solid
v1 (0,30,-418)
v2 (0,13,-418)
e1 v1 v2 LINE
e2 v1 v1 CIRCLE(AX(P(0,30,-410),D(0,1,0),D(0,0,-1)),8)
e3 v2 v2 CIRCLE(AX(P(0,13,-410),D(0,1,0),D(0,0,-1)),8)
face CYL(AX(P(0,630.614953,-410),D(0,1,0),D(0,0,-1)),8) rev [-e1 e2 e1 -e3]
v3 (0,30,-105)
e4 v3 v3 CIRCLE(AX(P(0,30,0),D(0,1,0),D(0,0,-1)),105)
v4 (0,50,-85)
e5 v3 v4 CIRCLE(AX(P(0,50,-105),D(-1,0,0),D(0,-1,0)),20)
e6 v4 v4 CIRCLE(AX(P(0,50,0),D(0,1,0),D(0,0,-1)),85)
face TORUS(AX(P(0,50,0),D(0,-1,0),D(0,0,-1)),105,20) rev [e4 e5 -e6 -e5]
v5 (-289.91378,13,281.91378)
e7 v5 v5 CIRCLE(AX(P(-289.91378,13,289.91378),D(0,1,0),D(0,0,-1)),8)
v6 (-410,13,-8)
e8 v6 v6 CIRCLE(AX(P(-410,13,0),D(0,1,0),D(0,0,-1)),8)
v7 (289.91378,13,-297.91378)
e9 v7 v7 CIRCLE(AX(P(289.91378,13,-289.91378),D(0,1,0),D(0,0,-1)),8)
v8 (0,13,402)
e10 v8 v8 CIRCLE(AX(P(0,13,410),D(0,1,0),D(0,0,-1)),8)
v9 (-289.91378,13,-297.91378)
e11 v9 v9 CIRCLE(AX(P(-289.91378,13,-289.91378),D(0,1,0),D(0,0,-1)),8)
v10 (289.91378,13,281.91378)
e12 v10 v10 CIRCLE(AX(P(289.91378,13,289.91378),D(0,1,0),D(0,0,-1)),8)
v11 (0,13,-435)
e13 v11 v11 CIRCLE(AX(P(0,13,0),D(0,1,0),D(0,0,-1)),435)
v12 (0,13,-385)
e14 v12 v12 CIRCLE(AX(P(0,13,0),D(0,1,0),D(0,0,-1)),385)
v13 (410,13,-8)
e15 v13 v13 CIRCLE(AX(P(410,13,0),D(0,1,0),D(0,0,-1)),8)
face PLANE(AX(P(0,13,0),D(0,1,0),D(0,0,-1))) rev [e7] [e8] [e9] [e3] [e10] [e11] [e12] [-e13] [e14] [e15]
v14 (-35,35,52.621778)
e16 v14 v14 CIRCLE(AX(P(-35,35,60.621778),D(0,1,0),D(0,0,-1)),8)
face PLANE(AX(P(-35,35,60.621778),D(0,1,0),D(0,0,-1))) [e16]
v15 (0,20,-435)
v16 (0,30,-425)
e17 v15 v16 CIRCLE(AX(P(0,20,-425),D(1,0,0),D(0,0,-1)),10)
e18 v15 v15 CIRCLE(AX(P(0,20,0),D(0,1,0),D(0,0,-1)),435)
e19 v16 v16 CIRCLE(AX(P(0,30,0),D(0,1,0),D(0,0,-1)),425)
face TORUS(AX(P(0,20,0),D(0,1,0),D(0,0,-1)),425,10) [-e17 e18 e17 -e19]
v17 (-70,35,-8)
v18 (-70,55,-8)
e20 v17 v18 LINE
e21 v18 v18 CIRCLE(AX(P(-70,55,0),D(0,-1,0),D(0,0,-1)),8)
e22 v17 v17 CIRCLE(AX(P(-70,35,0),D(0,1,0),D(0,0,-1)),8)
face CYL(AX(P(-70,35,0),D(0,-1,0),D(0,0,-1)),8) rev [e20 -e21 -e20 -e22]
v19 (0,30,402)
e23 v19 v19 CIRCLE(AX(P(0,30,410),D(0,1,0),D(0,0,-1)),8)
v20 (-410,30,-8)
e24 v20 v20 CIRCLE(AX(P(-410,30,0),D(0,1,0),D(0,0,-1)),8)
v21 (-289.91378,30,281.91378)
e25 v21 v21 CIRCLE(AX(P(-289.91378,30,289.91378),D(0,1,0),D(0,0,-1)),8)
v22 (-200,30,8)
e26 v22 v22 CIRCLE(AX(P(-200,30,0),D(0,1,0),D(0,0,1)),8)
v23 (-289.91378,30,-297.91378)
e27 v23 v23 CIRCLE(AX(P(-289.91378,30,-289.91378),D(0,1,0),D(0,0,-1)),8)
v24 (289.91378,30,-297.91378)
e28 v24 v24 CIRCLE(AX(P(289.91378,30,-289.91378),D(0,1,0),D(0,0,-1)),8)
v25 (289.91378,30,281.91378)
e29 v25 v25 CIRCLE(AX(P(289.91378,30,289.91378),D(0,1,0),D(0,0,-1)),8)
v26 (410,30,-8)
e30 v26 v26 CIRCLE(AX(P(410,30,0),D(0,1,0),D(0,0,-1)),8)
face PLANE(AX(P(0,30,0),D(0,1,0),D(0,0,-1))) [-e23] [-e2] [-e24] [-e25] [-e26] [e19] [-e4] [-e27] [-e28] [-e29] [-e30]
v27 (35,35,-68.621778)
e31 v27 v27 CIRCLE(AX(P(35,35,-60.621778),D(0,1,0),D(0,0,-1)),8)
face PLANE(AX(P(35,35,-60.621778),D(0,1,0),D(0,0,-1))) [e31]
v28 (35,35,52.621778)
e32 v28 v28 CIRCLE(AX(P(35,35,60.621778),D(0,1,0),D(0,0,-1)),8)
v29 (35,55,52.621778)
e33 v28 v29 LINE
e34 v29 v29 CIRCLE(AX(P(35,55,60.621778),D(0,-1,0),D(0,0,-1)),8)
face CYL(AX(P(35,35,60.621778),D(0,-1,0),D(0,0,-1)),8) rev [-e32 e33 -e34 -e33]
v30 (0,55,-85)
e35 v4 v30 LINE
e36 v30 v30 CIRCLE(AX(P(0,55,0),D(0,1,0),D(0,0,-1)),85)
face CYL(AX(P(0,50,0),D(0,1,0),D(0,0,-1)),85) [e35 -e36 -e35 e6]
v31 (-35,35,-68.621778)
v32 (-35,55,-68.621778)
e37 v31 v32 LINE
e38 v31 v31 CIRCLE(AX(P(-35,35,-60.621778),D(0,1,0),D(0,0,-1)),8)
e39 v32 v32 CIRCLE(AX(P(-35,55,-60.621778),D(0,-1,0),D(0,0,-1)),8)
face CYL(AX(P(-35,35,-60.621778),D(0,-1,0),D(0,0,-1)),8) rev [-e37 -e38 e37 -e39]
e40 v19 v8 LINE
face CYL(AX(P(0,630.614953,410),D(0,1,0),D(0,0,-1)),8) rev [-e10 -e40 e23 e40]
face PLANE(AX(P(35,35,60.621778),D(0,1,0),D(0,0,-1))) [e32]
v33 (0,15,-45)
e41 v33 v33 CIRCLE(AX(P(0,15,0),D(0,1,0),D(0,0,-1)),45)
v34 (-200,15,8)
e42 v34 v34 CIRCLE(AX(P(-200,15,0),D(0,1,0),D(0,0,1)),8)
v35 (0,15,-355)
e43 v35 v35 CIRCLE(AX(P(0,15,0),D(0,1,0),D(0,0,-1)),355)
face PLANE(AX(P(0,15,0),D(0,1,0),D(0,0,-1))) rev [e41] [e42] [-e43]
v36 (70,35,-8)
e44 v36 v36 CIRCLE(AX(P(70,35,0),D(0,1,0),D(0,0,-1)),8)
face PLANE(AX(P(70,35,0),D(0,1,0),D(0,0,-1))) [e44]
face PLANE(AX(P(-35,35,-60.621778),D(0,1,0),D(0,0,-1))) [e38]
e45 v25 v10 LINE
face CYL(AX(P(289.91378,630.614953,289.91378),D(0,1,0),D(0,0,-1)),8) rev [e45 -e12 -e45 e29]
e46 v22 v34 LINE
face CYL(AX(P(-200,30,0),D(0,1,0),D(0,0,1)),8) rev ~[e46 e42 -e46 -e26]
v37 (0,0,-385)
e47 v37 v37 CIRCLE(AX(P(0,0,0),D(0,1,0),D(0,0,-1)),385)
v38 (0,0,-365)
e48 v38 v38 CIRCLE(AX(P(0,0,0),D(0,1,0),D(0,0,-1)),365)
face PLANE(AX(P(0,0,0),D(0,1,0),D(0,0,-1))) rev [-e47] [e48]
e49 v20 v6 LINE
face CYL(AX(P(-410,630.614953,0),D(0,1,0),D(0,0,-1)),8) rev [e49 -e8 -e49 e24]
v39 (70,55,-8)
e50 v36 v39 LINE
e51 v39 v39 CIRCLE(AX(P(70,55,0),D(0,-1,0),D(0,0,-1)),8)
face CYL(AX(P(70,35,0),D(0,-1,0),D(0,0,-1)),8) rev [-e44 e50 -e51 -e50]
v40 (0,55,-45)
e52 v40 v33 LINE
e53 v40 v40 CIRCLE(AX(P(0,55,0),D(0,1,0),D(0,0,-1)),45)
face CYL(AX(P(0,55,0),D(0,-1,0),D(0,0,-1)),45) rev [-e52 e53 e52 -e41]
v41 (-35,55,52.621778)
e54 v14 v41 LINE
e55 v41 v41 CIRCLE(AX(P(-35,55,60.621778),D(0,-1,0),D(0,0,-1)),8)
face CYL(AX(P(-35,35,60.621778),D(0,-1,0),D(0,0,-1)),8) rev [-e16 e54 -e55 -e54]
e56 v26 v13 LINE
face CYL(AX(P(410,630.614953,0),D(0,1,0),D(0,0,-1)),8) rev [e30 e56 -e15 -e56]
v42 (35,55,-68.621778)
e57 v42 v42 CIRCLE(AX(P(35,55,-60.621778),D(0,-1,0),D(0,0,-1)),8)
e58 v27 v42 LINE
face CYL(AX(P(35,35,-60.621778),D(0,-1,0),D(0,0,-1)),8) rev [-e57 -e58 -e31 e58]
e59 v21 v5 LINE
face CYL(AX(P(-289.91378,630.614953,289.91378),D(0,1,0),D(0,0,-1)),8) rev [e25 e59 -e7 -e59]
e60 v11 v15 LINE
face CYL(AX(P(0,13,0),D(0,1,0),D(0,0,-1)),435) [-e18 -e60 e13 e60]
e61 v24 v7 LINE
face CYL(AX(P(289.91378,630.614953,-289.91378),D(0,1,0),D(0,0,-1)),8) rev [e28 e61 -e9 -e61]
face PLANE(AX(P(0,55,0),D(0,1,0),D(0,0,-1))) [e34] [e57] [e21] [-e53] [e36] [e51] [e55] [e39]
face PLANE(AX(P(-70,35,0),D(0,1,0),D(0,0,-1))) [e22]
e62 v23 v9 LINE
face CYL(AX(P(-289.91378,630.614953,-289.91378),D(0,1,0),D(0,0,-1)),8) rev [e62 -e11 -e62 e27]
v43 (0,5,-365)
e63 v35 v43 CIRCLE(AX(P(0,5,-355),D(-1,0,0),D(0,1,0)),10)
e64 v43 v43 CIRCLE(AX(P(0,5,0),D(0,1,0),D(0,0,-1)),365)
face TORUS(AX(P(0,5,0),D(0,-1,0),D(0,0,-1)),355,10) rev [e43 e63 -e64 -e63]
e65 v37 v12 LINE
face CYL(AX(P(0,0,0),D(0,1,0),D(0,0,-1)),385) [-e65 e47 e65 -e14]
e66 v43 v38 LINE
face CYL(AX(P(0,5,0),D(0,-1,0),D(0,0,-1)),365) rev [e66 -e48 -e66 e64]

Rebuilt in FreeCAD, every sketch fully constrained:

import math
import FreeCAD as App
import Part
import Sketcher
from FreeCAD import Vector
Q = App.Units.Quantity

doc = App.newDocument("Part")
body = doc.addObject("PartDesign::Body", "Body")

sketch1 = body.newObject("Sketcher::SketchObject", "Sketch")
sketch1.AttachmentSupport = (doc.getObject("XY_Plane"), [""])
sketch1.MapMode = "FlatFace"
sketch1.addGeometry([
    Part.LineSegment(Vector(-385, 0, 0), Vector(-365, 0, 0)),
    Part.LineSegment(Vector(-365, 0, 0), Vector(-365, 5, 0)),
    Part.ArcOfCircle(Part.Circle(Vector(-355, 5, 0), Vector(0, 0, 1), 10), math.radians(90), math.radians(180)),
    Part.LineSegment(Vector(-355, 15, 0), Vector(-45, 15, 0)),
    Part.LineSegment(Vector(-45, 15, 0), Vector(-45, 55, 0)),
    Part.LineSegment(Vector(-45, 55, 0), Vector(-85, 55, 0)),
    Part.LineSegment(Vector(-85, 55, 0), Vector(-85, 50, 0)),
    Part.ArcOfCircle(Part.Circle(Vector(-105, 50, 0), Vector(0, 0, 1), 20), math.radians(-90), math.radians(0)),
    Part.LineSegment(Vector(-105, 30, 0), Vector(-425, 30, 0)),
    Part.ArcOfCircle(Part.Circle(Vector(-425, 20, 0), Vector(0, 0, 1), 10), math.radians(90), math.radians(180)),
    Part.LineSegment(Vector(-435, 20, 0), Vector(-435, 13, 0)),
    Part.LineSegment(Vector(-435, 13, 0), Vector(-385, 13, 0)),
    Part.LineSegment(Vector(-385, 13, 0), Vector(-385, 0, 0)),
], False)
sketch1.addConstraint([
    Sketcher.Constraint("Coincident", 0, 2, 1, 1),
    Sketcher.Constraint("Tangent", 1, 2, 2, 2),
    Sketcher.Constraint("Tangent", 2, 1, 3, 1),
    Sketcher.Constraint("Coincident", 3, 2, 4, 1),
    Sketcher.Constraint("Coincident", 4, 2, 5, 1),
    Sketcher.Constraint("Coincident", 5, 2, 6, 1),
    Sketcher.Constraint("Tangent", 6, 2, 7, 2),
    Sketcher.Constraint("Tangent", 7, 1, 8, 1),
    Sketcher.Constraint("Tangent", 8, 2, 9, 1),
    Sketcher.Constraint("Tangent", 9, 2, 10, 1),
    Sketcher.Constraint("Coincident", 10, 2, 11, 1),
    Sketcher.Constraint("Coincident", 11, 2, 12, 1),
    Sketcher.Constraint("Coincident", 12, 2, 0, 1),
    Sketcher.Constraint("Horizontal", 0),
    Sketcher.Constraint("Vertical", 1),
    Sketcher.Constraint("Horizontal", 3),
    Sketcher.Constraint("Vertical", 4),
    Sketcher.Constraint("Horizontal", 5),
    Sketcher.Constraint("Vertical", 6),
    Sketcher.Constraint("Horizontal", 8),
    Sketcher.Constraint("Vertical", 10),
    Sketcher.Constraint("Horizontal", 11),
    Sketcher.Constraint("Vertical", 12),
    Sketcher.Constraint("Equal", 2, 9),
    Sketcher.Constraint("PointOnObject", 0, 2, -1),
    Sketcher.Constraint("Equal", 5, 4),
    Sketcher.Constraint("Equal", 1, 6),
    Sketcher.Constraint("Radius", 2, Q("10 mm")),
    Sketcher.Constraint("Radius", 7, Q("20 mm")),
    Sketcher.Constraint("DistanceX", 0, 1, 0, 2, Q("20 mm")),
    Sketcher.Constraint("DistanceX", 3, 1, 3, 2, Q("310 mm")),
    Sketcher.Constraint("DistanceX", 5, 2, 5, 1, Q("40 mm")),
    Sketcher.Constraint("DistanceX", 8, 2, 8, 1, Q("320 mm")),
    Sketcher.Constraint("DistanceY", 1, 1, 1, 2, Q("5 mm")),
    Sketcher.Constraint("DistanceY", 10, 2, 10, 1, Q("7 mm")),
    Sketcher.Constraint("DistanceX", 2, 3, -1, 1, Q("355 mm")),
])
revolution = body.newObject("PartDesign::Revolution", "Revolution")
revolution.Profile = sketch1
revolution.ReferenceAxis = (sketch1, ["V_Axis"])
revolution.Angle = 360

sketch2 = body.newObject("Sketcher::SketchObject", "Sketch001")
sketch2.AttachmentSupport = (doc.getObject("XZ_Plane"), [""])
sketch2.MapMode = "FlatFace"
sketch2.AttachmentOffset = App.Placement(Vector(0, 0, -13), App.Rotation())
sketch2.addGeometry([
    Part.Circle(Vector(410, 0, 0), Vector(0, 0, 1), 8),
    Part.Circle(Vector(290, -290, 0), Vector(0, 0, 1), 8),
    Part.Circle(Vector(0, -410, 0), Vector(0, 0, 1), 8),
    Part.Circle(Vector(-290, -290, 0), Vector(0, 0, 1), 8),
    Part.Circle(Vector(-410, 0, 0), Vector(0, 0, 1), 8),
    Part.Circle(Vector(-290, 290, 0), Vector(0, 0, 1), 8),
    Part.Circle(Vector(0, 410, 0), Vector(0, 0, 1), 8),
    Part.Circle(Vector(290, 290, 0), Vector(0, 0, 1), 8),
], False)
sketch2.addConstraint([
    Sketcher.Constraint("Equal", 0, 1),
    Sketcher.Constraint("Equal", 1, 2),
    Sketcher.Constraint("Equal", 2, 3),
    Sketcher.Constraint("Equal", 3, 4),
    Sketcher.Constraint("Equal", 4, 5),
    Sketcher.Constraint("Equal", 5, 6),
    Sketcher.Constraint("Equal", 6, 7),
    Sketcher.Constraint("Symmetric", 0, 3, 4, 3, -1, 1),
    Sketcher.Constraint("Symmetric", 1, 3, 5, 3, -1, 1),
    Sketcher.Constraint("Symmetric", 2, 3, 6, 3, -1, 1),
    Sketcher.Constraint("Symmetric", 3, 3, 7, 3, -1, 1),
    Sketcher.Constraint("Symmetric", 1, 3, 3, 3, -2),
    Sketcher.Constraint("PointOnObject", 0, 3, -1),
    Sketcher.Constraint("PointOnObject", 2, 3, -2),
    Sketcher.Constraint("Diameter", 0, Q("16 mm")),
    Sketcher.Constraint("DistanceX", -1, 1, 0, 3, Q("410 mm")),
    Sketcher.Constraint("DistanceY", 2, 3, -1, 1, Q("410 mm")),
    Sketcher.Constraint("DistanceX", -1, 1, 1, 3, Q("289.91378 mm")),
    Sketcher.Constraint("DistanceY", 1, 3, -1, 1, Q("289.91378 mm")),
])
pocket1 = body.newObject("PartDesign::Pocket", "Pocket")
pocket1.Profile = sketch2
pocket1.Type = "ThroughAll"
pocket1.Midplane = True

sketch3 = body.newObject("Sketcher::SketchObject", "Sketch002")
sketch3.AttachmentSupport = (doc.getObject("XZ_Plane"), [""])
sketch3.MapMode = "FlatFace"
sketch3.AttachmentOffset = App.Placement(Vector(0, 0, -55), App.Rotation())
sketch3.addGeometry([
    Part.Circle(Vector(70, 0, 0), Vector(0, 0, 1), 8),
    Part.Circle(Vector(35, 61, 0), Vector(0, 0, 1), 8),
    Part.Circle(Vector(-35, 61, 0), Vector(0, 0, 1), 8),
    Part.Circle(Vector(-70, 0, 0), Vector(0, 0, 1), 8),
    Part.Circle(Vector(-35, -61, 0), Vector(0, 0, 1), 8),
    Part.Circle(Vector(35, -61, 0), Vector(0, 0, 1), 8),
], False)
sketch3.addConstraint([
    Sketcher.Constraint("Equal", 0, 1),
    Sketcher.Constraint("Equal", 1, 2),
    Sketcher.Constraint("Equal", 2, 3),
    Sketcher.Constraint("Equal", 3, 4),
    Sketcher.Constraint("Equal", 4, 5),
    Sketcher.Constraint("Symmetric", 0, 3, 3, 3, -1, 1),
    Sketcher.Constraint("Symmetric", 1, 3, 4, 3, -1, 1),
    Sketcher.Constraint("Symmetric", 2, 3, 5, 3, -1, 1),
    Sketcher.Constraint("Symmetric", 1, 3, 2, 3, -2),
    Sketcher.Constraint("PointOnObject", 0, 3, -1),
    Sketcher.Constraint("Diameter", 0, Q("16 mm")),
    Sketcher.Constraint("DistanceX", -1, 1, 0, 3, Q("70 mm")),
    Sketcher.Constraint("DistanceX", -1, 1, 1, 3, Q("35 mm")),
    Sketcher.Constraint("DistanceY", -1, 1, 1, 3, Q("60.621778 mm")),
])
pocket2 = body.newObject("PartDesign::Pocket", "Pocket001")
pocket2.Profile = sketch3
pocket2.Type = "TwoLengths"
pocket2.Length = 618.636625
pocket2.Length2 = 20

sketch4 = body.newObject("Sketcher::SketchObject", "Sketch003")
sketch4.AttachmentSupport = (doc.getObject("XZ_Plane"), [""])
sketch4.MapMode = "FlatFace"
sketch4.AttachmentOffset = App.Placement(Vector(0, 0, -30), App.Rotation())
sketch4.addGeometry(Part.Circle(Vector(-200, 0, 0), Vector(0, 0, 1), 8), False)
sketch4.addConstraint([
    Sketcher.Constraint("PointOnObject", 0, 3, -1),
    Sketcher.Constraint("Diameter", 0, Q("16 mm")),
    Sketcher.Constraint("DistanceX", 0, 3, -1, 1, Q("200 mm")),
])
pocket3 = body.newObject("PartDesign::Pocket", "Pocket002")
pocket3.Profile = sketch4
pocket3.Length = 15
pocket3.Reversed = True

doc.recompute()
